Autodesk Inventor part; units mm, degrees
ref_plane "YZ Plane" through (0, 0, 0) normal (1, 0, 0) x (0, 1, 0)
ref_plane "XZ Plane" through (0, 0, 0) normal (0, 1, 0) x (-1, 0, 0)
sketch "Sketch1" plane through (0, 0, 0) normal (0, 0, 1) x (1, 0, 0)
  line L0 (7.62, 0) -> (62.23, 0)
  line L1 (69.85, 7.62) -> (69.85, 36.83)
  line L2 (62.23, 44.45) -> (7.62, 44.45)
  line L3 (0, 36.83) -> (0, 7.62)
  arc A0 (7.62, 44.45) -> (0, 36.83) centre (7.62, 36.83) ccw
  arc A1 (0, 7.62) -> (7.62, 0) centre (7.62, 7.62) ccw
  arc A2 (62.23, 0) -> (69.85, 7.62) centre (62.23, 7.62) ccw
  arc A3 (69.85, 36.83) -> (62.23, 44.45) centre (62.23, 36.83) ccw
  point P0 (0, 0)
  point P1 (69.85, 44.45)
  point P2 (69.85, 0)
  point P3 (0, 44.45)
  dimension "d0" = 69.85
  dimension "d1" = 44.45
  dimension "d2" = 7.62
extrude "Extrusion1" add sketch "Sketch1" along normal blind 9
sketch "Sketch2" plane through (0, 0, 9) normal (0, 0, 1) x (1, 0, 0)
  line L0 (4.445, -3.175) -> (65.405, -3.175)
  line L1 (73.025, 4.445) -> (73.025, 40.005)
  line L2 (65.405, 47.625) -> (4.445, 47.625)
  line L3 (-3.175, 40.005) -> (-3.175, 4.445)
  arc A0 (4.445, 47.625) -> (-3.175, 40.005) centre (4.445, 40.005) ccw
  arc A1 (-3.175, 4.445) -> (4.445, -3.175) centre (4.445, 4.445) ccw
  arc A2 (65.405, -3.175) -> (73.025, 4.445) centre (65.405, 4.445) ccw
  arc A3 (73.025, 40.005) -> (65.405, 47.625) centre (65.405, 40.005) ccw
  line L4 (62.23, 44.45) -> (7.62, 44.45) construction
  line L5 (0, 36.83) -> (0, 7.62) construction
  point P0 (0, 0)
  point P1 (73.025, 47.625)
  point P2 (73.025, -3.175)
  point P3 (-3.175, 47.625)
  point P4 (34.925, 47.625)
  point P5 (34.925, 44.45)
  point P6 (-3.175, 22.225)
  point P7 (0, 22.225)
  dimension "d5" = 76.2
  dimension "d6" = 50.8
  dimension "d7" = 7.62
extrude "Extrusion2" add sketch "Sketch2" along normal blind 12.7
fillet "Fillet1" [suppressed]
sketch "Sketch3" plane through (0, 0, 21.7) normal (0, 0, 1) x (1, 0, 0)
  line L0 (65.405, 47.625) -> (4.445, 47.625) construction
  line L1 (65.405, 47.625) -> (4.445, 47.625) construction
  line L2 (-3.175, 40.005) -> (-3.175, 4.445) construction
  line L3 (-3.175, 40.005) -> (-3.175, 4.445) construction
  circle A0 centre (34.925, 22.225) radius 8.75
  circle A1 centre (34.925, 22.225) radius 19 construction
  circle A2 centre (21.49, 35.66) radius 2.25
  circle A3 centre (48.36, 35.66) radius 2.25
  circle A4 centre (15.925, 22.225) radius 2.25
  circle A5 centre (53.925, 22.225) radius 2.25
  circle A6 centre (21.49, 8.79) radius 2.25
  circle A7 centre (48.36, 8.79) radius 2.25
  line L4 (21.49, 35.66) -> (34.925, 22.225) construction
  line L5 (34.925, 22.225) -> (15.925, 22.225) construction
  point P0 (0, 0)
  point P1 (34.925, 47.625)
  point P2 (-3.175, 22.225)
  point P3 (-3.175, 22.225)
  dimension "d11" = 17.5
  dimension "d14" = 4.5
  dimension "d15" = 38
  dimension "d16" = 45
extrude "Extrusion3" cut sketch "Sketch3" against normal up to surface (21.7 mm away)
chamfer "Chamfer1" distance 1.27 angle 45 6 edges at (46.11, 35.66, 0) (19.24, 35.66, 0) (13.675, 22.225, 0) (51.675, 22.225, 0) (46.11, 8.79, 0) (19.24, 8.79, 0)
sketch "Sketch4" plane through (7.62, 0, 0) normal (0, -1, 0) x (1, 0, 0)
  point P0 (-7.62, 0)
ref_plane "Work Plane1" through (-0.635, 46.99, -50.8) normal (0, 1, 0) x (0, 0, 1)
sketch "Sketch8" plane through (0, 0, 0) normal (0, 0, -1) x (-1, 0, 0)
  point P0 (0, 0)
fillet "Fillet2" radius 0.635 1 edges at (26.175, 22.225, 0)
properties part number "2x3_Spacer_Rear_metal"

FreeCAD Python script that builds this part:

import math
import FreeCAD as App
import Part
import Sketcher

V = App.Vector
Q = App.Units.Quantity


def edges_at(feature, points):
    """Names of the edges that pass closest to the given points."""
    edges = feature.Shape.Edges
    near = lambda p: min(range(len(edges)), key=lambda i: edges[i].distToShape(Part.Vertex(*p))[0])
    return sorted({f"Edge{near(p) + 1}" for p in points})

doc = App.newDocument("Part")
params = doc.addObject("Spreadsheet::Sheet", "Params")
for row, (alias, value) in enumerate([
    ("sketch1_radius", "0.3 in"),
    ("pad1_length", "9 mm"),
    ("sketch2_radius", "0.3 in"),
    ("sketch2_width", "2.4 in"),
    ("pad2_length", "0.5 in"),
    ("pocket1_length", "21.7 mm"),
    ("chamfer_size", "0.05 in"),
    ("fillet_radius", "0.025 in"),
], start=1):
    params.set(f"A{row}", alias)
    params.set(f"B{row}", "=" + value)
    params.setAlias(f"B{row}", alias)

body = doc.addObject("PartDesign::Body", "Body")

sketch1 = doc.addObject("Sketcher::SketchObject", "Sketch")
body.addObject(sketch1)
sketch1.AttachmentSupport = (doc.XY_Plane, [""])
sketch1.MapMode = "FlatFace"
sketch1.addGeometry([
    Part.ArcOfCircle(Part.Circle(V(8, 8, 0), V(0, 0, 1), 8), math.radians(180), math.radians(270)),
    Part.LineSegment(V(8, 0, 0), V(62, 0, 0)),
    Part.ArcOfCircle(Part.Circle(V(62, 8, 0), V(0, 0, 1), 8), math.radians(-90), math.radians(0)),
    Part.LineSegment(V(70, 8, 0), V(70, 37, 0)),
    Part.ArcOfCircle(Part.Circle(V(62, 37, 0), V(0, 0, 1), 8), math.radians(0), math.radians(90)),
    Part.LineSegment(V(62, 44, 0), V(8, 44, 0)),
    Part.ArcOfCircle(Part.Circle(V(8, 37, 0), V(0, 0, 1), 8), math.radians(90), math.radians(180)),
    Part.LineSegment(V(0, 37, 0), V(0, 8, 0)),
], False)
sketch1.addConstraint([
    Sketcher.Constraint("Tangent", 0, 2, 1, 1),
    Sketcher.Constraint("Tangent", 1, 2, 2, 1),
    Sketcher.Constraint("Tangent", 2, 2, 3, 1),
    Sketcher.Constraint("Tangent", 3, 2, 4, 1),
    Sketcher.Constraint("Tangent", 4, 2, 5, 1),
    Sketcher.Constraint("Tangent", 5, 2, 6, 1),
    Sketcher.Constraint("Tangent", 6, 2, 7, 1),
    Sketcher.Constraint("Tangent", 7, 2, 0, 1),
    Sketcher.Constraint("Horizontal", 1),
    Sketcher.Constraint("Vertical", 3),
    Sketcher.Constraint("Horizontal", 5),
    Sketcher.Constraint("Vertical", 7),
    Sketcher.Constraint("Equal", 0, 2),
    Sketcher.Constraint("Equal", 2, 4),
    Sketcher.Constraint("Equal", 4, 6),
    Sketcher.Constraint("PointOnObject", 0, 2, -1),
    Sketcher.Constraint("PointOnObject", 6, 2, -2),
    Sketcher.Constraint("Radius", 0, Q("0.3 in")),
    Sketcher.Constraint("DistanceX", -1, 1, 2, 2, Q("2.75 in")),
    Sketcher.Constraint("DistanceY", -1, 1, 4, 2, Q("1.75 in")),
])
sketch1.setExpression("Constraints[17]", "Params.sketch1_radius")
pad1 = doc.addObject("PartDesign::Pad", "Pad")
body.addObject(pad1)
pad1.Profile = sketch1
pad1.setExpression("Length", "Params.pad1_length")

sketch2 = doc.addObject("Sketcher::SketchObject", "Sketch001")
body.addObject(sketch2)
sketch2.AttachmentSupport = (doc.XY_Plane, [""])
sketch2.MapMode = "FlatFace"
sketch2.AttachmentOffset = App.Placement(V(0, 0, 9), App.Rotation())
sketch2.addGeometry([
    Part.ArcOfCircle(Part.Circle(V(4, 4, 0), V(0, 0, 1), 8), math.radians(180), math.radians(270)),
    Part.LineSegment(V(4, -3, 0), V(65, -3, 0)),
    Part.ArcOfCircle(Part.Circle(V(65, 4, 0), V(0, 0, 1), 8), math.radians(-90), math.radians(0)),
    Part.LineSegment(V(73, 4, 0), V(73, 40, 0)),
    Part.ArcOfCircle(Part.Circle(V(65, 40, 0), V(0, 0, 1), 8), math.radians(0), math.radians(90)),
    Part.LineSegment(V(65, 48, 0), V(4, 48, 0)),
    Part.ArcOfCircle(Part.Circle(V(4, 40, 0), V(0, 0, 1), 8), math.radians(90), math.radians(180)),
    Part.LineSegment(V(-3, 40, 0), V(-3, 4, 0)),
], False)
sketch2.addConstraint([
    Sketcher.Constraint("Tangent", 0, 2, 1, 1),
    Sketcher.Constraint("Tangent", 1, 2, 2, 1),
    Sketcher.Constraint("Tangent", 2, 2, 3, 1),
    Sketcher.Constraint("Tangent", 3, 2, 4, 1),
    Sketcher.Constraint("Tangent", 4, 2, 5, 1),
    Sketcher.Constraint("Tangent", 5, 2, 6, 1),
    Sketcher.Constraint("Tangent", 6, 2, 7, 1),
    Sketcher.Constraint("Tangent", 7, 2, 0, 1),
    Sketcher.Constraint("Horizontal", 1),
    Sketcher.Constraint("Vertical", 3),
    Sketcher.Constraint("Horizontal", 5),
    Sketcher.Constraint("Vertical", 7),
    Sketcher.Constraint("Equal", 0, 2),
    Sketcher.Constraint("Equal", 2, 4),
    Sketcher.Constraint("Equal", 4, 6),
    Sketcher.Constraint("Radius", 0, Q("0.3 in")),
    Sketcher.Constraint("DistanceY", 1, 2, 4, 2, Q("2 in")),
    Sketcher.Constraint("DistanceX", 1, 1, 1, 2, Q("2.4 in")),
    Sketcher.Constraint("DistanceX", -1, 1, 0, 3, Q("0.175 in")),
    Sketcher.Constraint("DistanceY", -1, 1, 0, 3, Q("0.175 in")),
])
sketch2.setExpression("Constraints[15]", "Params.sketch2_radius")
sketch2.setExpression("Constraints[17]", "Params.sketch2_width")
pad2 = doc.addObject("PartDesign::Pad", "Pad001")
body.addObject(pad2)
pad2.Profile = sketch2
pad2.setExpression("Length", "Params.pad2_length")

sketch3 = doc.addObject("Sketcher::SketchObject", "Sketch002")
body.addObject(sketch3)
sketch3.AttachmentSupport = (doc.XY_Plane, [""])
sketch3.MapMode = "FlatFace"
sketch3.AttachmentOffset = App.Placement(V(0, 0, 21.7), App.Rotation())
sketch3.addGeometry([
    Part.Circle(V(34.9, 22.2, 0), V(0, 0, 1), 8.8),
    Part.Circle(V(21.5, 35.7, 0), V(0, 0, 1), 2.2),
    Part.Circle(V(48.4, 35.7, 0), V(0, 0, 1), 2.2),
    Part.Circle(V(15.9, 22.2, 0), V(0, 0, 1), 2.2),
    Part.Circle(V(53.9, 22.2, 0), V(0, 0, 1), 2.2),
    Part.Circle(V(21.5, 8.8, 0), V(0, 0, 1), 2.2),
    Part.Circle(V(48.4, 8.8, 0), V(0, 0, 1), 2.2),
], False)
sketch3.addConstraint([
    Sketcher.Constraint("Equal", 1, 2),
    Sketcher.Constraint("Equal", 2, 3),
    Sketcher.Constraint("Equal", 3, 4),
    Sketcher.Constraint("Equal", 4, 5),
    Sketcher.Constraint("Equal", 5, 6),
    Sketcher.Constraint("Horizontal", 1, 3, 2, 3),
    Sketcher.Constraint("Horizontal", 0, 3, 3, 3),
    Sketcher.Constraint("Horizontal", 3, 3, 4, 3),
    Sketcher.Constraint("Horizontal", 5, 3, 6, 3),
    Sketcher.Constraint("Vertical", 1, 3, 5, 3),
    Sketcher.Constraint("Vertical", 2, 3, 6, 3),
    Sketcher.Constraint("Diameter", 0, 17.5),
    Sketcher.Constraint("Diameter", 1, 4.5),
    Sketcher.Constraint("DistanceX", 3, 3, 4, 3, 38.0),
    Sketcher.Constraint("DistanceX", -1, 1, 0, 3, Q("1.375 in")),
    Sketcher.Constraint("DistanceY", -1, 1, 0, 3, Q("0.875 in")),
    Sketcher.Constraint("DistanceX", 3, 3, 1, 3, Q("0.2191 in")),
    Sketcher.Constraint("DistanceX", 2, 3, 4, 3, Q("0.2191 in")),
    Sketcher.Constraint("DistanceX", -1, 1, 1, 3, 21.49),
    Sketcher.Constraint("DistanceY", -1, 1, 1, 3, 35.66),
    Sketcher.Constraint("DistanceY", -1, 1, 5, 3, 8.79),
])
pocket1 = doc.addObject("PartDesign::Pocket", "Pocket")
body.addObject(pocket1)
pocket1.Profile = sketch3
pocket1.setExpression("Length", "Params.pocket1_length")
doc.recompute()

chamfer = doc.addObject("PartDesign::Chamfer", "Chamfer")
body.addObject(chamfer)
chamfer.Base = (pocket1, edges_at(pocket1, [
    (46.11, 35.66, 0),
    (19.24, 35.66, 0),
    (13.675, 22.225, 0),
    (51.675, 22.225, 0),
    (46.11, 8.79, 0),
    (19.24, 8.79, 0),
]))
chamfer.setExpression("Size", "Params.chamfer_size")
doc.recompute()

fillet = doc.addObject("PartDesign::Fillet", "Fillet")
body.addObject(fillet)
fillet.Base = (chamfer, edges_at(chamfer, [(26.175, 22.225, 0)]))
fillet.setExpression("Radius", "Params.fillet_radius")

doc.recompute()
